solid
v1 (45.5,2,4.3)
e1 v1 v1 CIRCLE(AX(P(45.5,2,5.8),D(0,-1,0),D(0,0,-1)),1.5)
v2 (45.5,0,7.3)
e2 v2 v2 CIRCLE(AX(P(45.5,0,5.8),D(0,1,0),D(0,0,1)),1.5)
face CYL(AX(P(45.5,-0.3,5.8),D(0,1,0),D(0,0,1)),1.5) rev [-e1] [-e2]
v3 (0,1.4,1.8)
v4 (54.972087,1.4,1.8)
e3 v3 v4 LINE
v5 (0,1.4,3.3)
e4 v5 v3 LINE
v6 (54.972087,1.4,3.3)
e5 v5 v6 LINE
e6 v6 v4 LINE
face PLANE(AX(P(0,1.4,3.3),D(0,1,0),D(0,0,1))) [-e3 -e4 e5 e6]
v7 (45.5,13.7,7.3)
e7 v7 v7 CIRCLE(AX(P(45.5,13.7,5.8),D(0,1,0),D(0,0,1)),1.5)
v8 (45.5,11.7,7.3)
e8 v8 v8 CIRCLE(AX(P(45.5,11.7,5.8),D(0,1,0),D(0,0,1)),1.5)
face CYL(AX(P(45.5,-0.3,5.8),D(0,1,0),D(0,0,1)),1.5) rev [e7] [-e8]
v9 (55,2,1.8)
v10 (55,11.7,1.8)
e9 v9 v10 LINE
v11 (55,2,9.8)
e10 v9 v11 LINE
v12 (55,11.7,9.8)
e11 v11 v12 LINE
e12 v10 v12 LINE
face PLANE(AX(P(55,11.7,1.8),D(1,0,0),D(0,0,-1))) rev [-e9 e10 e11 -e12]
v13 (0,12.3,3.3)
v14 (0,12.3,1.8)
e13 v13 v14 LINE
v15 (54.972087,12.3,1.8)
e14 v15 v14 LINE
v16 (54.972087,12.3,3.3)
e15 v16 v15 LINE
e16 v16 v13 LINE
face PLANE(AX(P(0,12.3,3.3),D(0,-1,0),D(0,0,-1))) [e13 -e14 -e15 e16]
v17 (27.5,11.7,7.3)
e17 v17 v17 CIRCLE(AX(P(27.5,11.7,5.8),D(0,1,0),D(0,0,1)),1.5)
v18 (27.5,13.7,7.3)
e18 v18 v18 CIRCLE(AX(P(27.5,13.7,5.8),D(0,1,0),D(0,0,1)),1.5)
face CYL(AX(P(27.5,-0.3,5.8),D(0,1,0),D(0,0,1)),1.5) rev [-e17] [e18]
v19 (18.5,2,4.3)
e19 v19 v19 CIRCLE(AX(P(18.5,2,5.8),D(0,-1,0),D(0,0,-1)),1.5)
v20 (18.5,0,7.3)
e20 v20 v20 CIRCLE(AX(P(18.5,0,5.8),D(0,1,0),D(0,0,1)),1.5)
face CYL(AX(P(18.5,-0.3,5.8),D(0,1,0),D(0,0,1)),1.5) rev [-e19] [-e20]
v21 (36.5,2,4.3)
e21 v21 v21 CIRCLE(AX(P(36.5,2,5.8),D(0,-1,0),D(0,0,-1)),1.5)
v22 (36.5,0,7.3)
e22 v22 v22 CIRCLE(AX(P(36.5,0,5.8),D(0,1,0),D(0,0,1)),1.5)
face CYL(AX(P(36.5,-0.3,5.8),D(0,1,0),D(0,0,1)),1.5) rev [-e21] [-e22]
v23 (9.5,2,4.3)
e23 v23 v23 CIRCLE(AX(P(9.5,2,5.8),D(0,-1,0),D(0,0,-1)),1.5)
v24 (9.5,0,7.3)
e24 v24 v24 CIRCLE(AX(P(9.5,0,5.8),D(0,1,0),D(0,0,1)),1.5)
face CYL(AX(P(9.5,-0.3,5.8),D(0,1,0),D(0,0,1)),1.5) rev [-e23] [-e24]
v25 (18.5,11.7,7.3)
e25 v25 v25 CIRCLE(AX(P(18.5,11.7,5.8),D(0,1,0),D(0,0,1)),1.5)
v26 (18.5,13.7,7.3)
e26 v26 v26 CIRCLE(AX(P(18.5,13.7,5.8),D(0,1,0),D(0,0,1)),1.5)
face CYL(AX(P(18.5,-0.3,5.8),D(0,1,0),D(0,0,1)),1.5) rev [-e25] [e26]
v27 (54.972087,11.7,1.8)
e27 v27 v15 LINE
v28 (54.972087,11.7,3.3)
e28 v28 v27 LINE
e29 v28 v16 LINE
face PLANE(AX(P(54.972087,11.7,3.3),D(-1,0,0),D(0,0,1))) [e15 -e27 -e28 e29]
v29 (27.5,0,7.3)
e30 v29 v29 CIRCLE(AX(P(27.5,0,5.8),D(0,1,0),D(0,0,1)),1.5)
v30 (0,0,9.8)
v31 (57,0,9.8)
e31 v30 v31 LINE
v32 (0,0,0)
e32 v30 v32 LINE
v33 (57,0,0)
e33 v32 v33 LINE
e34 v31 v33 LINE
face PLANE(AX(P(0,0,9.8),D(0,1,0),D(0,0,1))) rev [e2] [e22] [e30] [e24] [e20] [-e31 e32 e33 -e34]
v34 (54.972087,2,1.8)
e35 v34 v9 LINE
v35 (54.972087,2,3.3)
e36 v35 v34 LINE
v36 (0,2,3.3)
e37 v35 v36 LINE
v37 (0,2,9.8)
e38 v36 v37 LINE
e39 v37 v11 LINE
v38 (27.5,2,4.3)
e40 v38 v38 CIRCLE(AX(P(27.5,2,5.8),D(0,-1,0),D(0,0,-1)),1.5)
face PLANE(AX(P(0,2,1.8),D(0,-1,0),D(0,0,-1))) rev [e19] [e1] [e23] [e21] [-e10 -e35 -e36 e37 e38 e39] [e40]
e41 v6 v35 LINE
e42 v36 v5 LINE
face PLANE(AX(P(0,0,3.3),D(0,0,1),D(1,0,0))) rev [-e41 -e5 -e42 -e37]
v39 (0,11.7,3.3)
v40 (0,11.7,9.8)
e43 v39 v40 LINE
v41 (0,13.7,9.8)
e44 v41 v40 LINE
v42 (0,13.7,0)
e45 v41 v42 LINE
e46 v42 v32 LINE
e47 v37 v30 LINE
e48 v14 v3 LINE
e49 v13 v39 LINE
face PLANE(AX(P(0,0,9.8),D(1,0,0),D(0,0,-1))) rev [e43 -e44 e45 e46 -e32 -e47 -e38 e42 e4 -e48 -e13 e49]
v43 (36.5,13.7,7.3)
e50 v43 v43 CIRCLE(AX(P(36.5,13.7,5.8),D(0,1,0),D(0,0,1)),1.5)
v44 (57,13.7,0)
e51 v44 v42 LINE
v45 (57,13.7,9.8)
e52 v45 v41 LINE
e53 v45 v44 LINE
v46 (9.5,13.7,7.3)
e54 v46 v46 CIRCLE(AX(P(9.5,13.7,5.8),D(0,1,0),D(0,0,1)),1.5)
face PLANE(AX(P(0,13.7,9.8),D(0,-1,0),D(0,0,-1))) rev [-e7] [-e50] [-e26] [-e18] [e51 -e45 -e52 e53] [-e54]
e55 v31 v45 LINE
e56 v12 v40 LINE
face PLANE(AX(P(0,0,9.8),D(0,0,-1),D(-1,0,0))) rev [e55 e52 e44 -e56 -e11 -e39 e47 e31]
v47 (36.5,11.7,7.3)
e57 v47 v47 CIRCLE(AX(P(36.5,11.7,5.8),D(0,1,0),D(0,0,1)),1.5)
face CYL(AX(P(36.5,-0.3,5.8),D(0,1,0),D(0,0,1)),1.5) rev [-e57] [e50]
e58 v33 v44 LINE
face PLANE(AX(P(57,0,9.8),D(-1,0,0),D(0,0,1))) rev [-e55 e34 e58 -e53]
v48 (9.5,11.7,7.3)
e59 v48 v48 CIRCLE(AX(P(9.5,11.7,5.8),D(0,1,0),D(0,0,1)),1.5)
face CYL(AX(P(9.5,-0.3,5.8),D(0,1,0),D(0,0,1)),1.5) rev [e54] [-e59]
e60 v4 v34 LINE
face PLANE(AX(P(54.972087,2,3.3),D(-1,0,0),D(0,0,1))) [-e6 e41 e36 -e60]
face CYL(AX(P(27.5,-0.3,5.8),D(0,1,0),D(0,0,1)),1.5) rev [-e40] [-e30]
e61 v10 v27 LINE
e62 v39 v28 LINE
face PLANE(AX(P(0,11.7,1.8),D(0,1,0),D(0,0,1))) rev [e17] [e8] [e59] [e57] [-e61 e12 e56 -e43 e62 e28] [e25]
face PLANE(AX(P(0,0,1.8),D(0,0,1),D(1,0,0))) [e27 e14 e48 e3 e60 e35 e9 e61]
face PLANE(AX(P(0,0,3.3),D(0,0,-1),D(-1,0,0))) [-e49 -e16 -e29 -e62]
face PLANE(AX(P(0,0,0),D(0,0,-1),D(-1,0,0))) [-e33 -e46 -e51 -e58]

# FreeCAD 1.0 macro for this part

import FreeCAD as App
import Part
import Sketcher

V = App.Vector
Q = App.Units.Quantity


def add_polygon(sketch, points):
    """Adds a closed chain of lines whose ends are joined by coincident constraints."""
    first, n = sketch.GeometryCount, len(points)
    for a, b in zip(points, points[1:] + points[:1]):
        sketch.addGeometry(Part.LineSegment(App.Vector(*a, 0), App.Vector(*b, 0)), False)
    for i in range(n):
        sketch.addConstraint(Sketcher.Constraint("Coincident", first + i, 2, first + (i + 1) % n, 1))

doc = App.newDocument("Part")
body = doc.addObject("PartDesign::Body", "Body")

sketch1 = body.newObject("Sketcher::SketchObject", "Sketch")
sketch1.AttachmentSupport = (doc.getObject("XY_Plane"), [""])
sketch1.MapMode = "FlatFace"
add_polygon(sketch1, [(0, 14), (0, 0), (57, 0), (57, 14)])
sketch1.addConstraint(Sketcher.Constraint("Vertical", 0))
sketch1.addConstraint(Sketcher.Constraint("Horizontal", 1))
sketch1.addConstraint(Sketcher.Constraint("Vertical", 2))
sketch1.addConstraint(Sketcher.Constraint("Horizontal", 3))
sketch1.addConstraint(Sketcher.Constraint("Coincident", 0, 2, -1, 1))
sketch1.addConstraint(Sketcher.Constraint("DistanceX", 1, 1, 1, 2, Q("57 mm")))
sketch1.addConstraint(Sketcher.Constraint("DistanceY", 0, 2, 0, 1, Q("13.7 mm")))
pad1 = body.newObject("PartDesign::Pad", "Pad")
pad1.Profile = sketch1
pad1.Length = 9.8

sketch2 = body.newObject("Sketcher::SketchObject", "Sketch001")
sketch2.AttachmentSupport = (doc.getObject("XY_Plane"), [""])
sketch2.MapMode = "FlatFace"
sketch2.AttachmentOffset = App.Placement(V(0, 0, 9.8), App.Rotation())
add_polygon(sketch2, [(0, 12), (0, 2), (55, 2), (55, 12)])
sketch2.addConstraint(Sketcher.Constraint("Vertical", 0))
sketch2.addConstraint(Sketcher.Constraint("Horizontal", 1))
sketch2.addConstraint(Sketcher.Constraint("Vertical", 2))
sketch2.addConstraint(Sketcher.Constraint("Horizontal", 3))
sketch2.addConstraint(Sketcher.Constraint("PointOnObject", 0, 2, -2))
sketch2.addConstraint(Sketcher.Constraint("DistanceX", 1, 1, 1, 2, Q("55 mm")))
sketch2.addConstraint(Sketcher.Constraint("DistanceY", 0, 2, 0, 1, Q("9.7 mm")))
sketch2.addConstraint(Sketcher.Constraint("DistanceY", -1, 1, 0, 2, Q("2 mm")))
pocket1 = body.newObject("PartDesign::Pocket", "Pocket")
pocket1.Profile = sketch2
pocket1.Length = 8

sketch3 = body.newObject("Sketcher::SketchObject", "Sketch002")
sketch3.AttachmentSupport = (doc.getObject("XY_Plane"), [""])
sketch3.MapMode = "FlatFace"
sketch3.AttachmentOffset = App.Placement(V(0, 0, 1.8), App.Rotation())
add_polygon(sketch3, [(0, 12.3), (0, 11.7), (55, 11.7), (55, 12.3)])
add_polygon(sketch3, [(0, 2), (0, 1.4), (55, 1.4), (55, 2)])
sketch3.addConstraint(Sketcher.Constraint("Vertical", 0))
sketch3.addConstraint(Sketcher.Constraint("Horizontal", 1))
sketch3.addConstraint(Sketcher.Constraint("Vertical", 2))
sketch3.addConstraint(Sketcher.Constraint("Horizontal", 3))
sketch3.addConstraint(Sketcher.Constraint("Vertical", 4))
sketch3.addConstraint(Sketcher.Constraint("Horizontal", 5))
sketch3.addConstraint(Sketcher.Constraint("Vertical", 6))
sketch3.addConstraint(Sketcher.Constraint("Horizontal", 7))
sketch3.addConstraint(Sketcher.Constraint("PointOnObject", 0, 2, -2))
sketch3.addConstraint(Sketcher.Constraint("PointOnObject", 4, 2, -2))
sketch3.addConstraint(Sketcher.Constraint("Vertical", 2, 2, 5, 2))
sketch3.addConstraint(Sketcher.Constraint("Equal", 2, 4))
sketch3.addConstraint(Sketcher.Constraint("DistanceY", 0, 2, 0, 1, Q("0.6 mm")))
sketch3.addConstraint(Sketcher.Constraint("DistanceY", -1, 1, 6, 2, Q("2 mm")))
sketch3.addConstraint(Sketcher.Constraint("DistanceY", -1, 1, 0, 2, Q("11.7 mm")))
sketch3.addConstraint(Sketcher.Constraint("DistanceX", 1, 1, 1, 2, Q("54.972087 mm")))
pocket2 = body.newObject("PartDesign::Pocket", "Pocket001")
pocket2.Profile = sketch3
pocket2.Length = 1.5
pocket2.Reversed = True

sketch4 = body.newObject("Sketcher::SketchObject", "Sketch003")
sketch4.AttachmentSupport = (doc.getObject("XZ_Plane"), [""])
sketch4.MapMode = "FlatFace"
sketch4.AttachmentOffset = App.Placement(V(0, 0, -13.7), App.Rotation())
sketch4.addGeometry(Part.Circle(V(45.5, 5.8, 0), V(0, 0, 1), 1.5), False)
sketch4.addGeometry(Part.Circle(V(36.5, 5.8, 0), V(0, 0, 1), 1.5), False)
sketch4.addGeometry(Part.Circle(V(27.5, 5.8, 0), V(0, 0, 1), 1.5), False)
sketch4.addGeometry(Part.Circle(V(18.5, 5.8, 0), V(0, 0, 1), 1.5), False)
sketch4.addGeometry(Part.Circle(V(9.5, 5.8, 0), V(0, 0, 1), 1.5), False)
sketch4.addConstraint(Sketcher.Constraint("Equal", 0, 1))
sketch4.addConstraint(Sketcher.Constraint("Equal", 1, 2))
sketch4.addConstraint(Sketcher.Constraint("Equal", 2, 3))
sketch4.addConstraint(Sketcher.Constraint("Equal", 3, 4))
sketch4.addConstraint(Sketcher.Constraint("Horizontal", 0, 3, 1, 3))
sketch4.addConstraint(Sketcher.Constraint("Horizontal", 1, 3, 2, 3))
sketch4.addConstraint(Sketcher.Constraint("Horizontal", 2, 3, 3, 3))
sketch4.addConstraint(Sketcher.Constraint("Horizontal", 3, 3, 4, 3))
sketch4.addConstraint(Sketcher.Constraint("Diameter", 0, Q("3 mm")))
sketch4.addConstraint(Sketcher.Constraint("DistanceX", 1, 3, 0, 3, Q("9 mm")))
sketch4.addConstraint(Sketcher.Constraint("DistanceX", 2, 3, 1, 3, Q("9 mm")))
sketch4.addConstraint(Sketcher.Constraint("DistanceX", 3, 3, 2, 3, Q("9 mm")))
sketch4.addConstraint(Sketcher.Constraint("DistanceX", 4, 3, 3, 3, Q("9 mm")))
sketch4.addConstraint(Sketcher.Constraint("DistanceX", -1, 1, 0, 3, Q("45.5 mm")))
sketch4.addConstraint(Sketcher.Constraint("DistanceY", -1, 1, 0, 3, Q("5.8 mm")))
pocket3 = body.newObject("PartDesign::Pocket", "Pocket002")
pocket3.Profile = sketch4
pocket3.Length = 14
pocket3.Reversed = True

doc.recompute()
